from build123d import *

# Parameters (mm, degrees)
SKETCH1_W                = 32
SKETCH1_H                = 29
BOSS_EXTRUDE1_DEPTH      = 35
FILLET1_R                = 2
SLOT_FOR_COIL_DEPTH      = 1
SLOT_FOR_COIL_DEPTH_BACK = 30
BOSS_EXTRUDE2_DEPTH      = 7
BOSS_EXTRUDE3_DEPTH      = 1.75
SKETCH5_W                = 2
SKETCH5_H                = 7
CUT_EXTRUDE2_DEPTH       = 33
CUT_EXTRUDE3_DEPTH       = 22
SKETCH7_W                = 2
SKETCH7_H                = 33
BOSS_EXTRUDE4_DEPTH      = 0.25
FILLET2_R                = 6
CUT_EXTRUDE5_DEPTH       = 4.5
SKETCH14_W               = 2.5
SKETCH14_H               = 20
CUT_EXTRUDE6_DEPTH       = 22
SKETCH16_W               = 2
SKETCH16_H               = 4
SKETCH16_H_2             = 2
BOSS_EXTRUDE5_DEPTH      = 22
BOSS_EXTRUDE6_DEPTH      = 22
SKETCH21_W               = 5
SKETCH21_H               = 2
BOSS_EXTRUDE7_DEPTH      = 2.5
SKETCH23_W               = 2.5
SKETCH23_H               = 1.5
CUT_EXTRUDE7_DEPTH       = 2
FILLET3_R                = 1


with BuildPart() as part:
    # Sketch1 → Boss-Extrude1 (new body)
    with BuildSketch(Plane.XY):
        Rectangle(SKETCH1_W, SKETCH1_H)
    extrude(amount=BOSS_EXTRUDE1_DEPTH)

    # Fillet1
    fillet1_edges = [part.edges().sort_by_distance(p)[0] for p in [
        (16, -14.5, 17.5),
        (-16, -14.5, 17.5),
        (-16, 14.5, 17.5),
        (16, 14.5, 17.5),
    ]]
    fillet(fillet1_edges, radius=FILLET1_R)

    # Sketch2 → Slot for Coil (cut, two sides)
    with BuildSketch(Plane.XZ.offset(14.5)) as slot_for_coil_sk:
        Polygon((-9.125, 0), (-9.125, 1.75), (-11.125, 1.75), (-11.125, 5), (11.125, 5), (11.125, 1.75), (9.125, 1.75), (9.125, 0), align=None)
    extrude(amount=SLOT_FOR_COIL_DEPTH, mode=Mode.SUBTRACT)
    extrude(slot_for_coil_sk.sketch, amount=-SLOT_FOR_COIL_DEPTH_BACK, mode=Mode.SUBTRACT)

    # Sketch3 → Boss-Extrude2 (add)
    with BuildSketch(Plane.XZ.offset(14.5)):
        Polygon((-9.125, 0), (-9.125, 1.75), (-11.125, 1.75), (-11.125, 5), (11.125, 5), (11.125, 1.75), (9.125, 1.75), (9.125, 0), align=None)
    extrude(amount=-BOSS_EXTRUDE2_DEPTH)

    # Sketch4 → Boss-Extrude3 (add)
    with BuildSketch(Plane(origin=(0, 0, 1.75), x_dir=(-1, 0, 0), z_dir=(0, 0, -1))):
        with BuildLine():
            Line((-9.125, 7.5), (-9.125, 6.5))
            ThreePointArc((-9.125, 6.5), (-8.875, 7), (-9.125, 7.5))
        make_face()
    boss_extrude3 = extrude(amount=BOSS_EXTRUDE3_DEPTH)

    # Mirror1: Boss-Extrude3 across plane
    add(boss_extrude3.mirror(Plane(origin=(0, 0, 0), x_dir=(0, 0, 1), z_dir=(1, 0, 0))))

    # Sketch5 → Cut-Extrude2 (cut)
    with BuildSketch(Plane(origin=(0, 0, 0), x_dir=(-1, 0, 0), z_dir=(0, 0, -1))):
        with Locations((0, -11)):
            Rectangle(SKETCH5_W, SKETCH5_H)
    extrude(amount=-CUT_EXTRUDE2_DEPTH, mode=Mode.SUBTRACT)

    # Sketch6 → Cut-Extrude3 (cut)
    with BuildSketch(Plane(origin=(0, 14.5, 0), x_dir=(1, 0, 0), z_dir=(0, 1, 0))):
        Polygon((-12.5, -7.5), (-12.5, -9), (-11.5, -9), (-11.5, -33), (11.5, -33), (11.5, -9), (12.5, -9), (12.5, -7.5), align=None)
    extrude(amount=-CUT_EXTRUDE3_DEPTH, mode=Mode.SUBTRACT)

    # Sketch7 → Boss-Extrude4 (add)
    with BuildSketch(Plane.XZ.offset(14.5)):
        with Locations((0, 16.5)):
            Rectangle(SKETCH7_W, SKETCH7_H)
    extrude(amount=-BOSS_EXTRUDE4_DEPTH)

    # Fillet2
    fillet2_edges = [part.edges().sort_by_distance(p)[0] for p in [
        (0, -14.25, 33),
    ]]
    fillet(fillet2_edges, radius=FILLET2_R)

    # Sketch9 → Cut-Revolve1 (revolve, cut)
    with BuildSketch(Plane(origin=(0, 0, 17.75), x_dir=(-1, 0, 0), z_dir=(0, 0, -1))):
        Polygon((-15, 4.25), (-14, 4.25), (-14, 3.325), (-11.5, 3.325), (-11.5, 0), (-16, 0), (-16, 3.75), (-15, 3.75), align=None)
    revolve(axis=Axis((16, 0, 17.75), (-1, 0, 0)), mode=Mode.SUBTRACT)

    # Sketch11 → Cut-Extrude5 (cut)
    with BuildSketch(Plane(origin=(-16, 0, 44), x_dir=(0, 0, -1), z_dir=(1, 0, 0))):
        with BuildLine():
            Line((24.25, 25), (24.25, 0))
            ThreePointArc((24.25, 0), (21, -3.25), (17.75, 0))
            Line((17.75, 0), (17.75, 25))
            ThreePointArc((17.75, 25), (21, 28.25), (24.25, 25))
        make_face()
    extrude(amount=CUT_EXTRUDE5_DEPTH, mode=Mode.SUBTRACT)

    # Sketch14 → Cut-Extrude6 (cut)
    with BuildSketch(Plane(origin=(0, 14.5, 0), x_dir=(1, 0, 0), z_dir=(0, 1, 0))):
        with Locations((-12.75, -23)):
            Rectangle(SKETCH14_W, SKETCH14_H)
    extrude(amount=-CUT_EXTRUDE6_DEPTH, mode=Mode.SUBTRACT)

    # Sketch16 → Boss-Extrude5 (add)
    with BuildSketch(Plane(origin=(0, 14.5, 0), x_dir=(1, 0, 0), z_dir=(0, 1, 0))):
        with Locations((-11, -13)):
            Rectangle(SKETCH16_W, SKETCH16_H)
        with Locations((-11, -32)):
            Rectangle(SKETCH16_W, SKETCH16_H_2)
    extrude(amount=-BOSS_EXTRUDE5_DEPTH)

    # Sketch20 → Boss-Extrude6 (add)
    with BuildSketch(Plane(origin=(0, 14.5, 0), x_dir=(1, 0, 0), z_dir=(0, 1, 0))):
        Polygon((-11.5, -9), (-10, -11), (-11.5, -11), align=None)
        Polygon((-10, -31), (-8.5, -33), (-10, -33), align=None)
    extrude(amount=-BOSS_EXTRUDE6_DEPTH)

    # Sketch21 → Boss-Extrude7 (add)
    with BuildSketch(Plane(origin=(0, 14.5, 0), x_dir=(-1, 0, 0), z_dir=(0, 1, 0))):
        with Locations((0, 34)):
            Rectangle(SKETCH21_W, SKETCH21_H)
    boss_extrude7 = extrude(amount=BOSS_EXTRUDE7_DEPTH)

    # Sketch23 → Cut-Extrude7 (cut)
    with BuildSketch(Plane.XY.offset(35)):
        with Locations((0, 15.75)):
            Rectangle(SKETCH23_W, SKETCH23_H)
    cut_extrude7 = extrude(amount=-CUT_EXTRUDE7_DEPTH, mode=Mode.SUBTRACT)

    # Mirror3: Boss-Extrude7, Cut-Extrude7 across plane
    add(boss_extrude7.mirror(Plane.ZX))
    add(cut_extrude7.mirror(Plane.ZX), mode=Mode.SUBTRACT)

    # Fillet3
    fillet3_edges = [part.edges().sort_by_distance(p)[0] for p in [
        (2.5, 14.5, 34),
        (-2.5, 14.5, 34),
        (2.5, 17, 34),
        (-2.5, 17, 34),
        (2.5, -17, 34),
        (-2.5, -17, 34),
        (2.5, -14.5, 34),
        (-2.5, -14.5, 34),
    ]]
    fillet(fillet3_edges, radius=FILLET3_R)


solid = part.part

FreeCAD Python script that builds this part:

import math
import FreeCAD as App
import Part
import Sketcher


def edges_at(feature, points):
    """Names of the edges that pass closest to the given points."""
    edges = feature.Shape.Edges
    near = lambda p: min(range(len(edges)), key=lambda i: edges[i].distToShape(Part.Vertex(*p))[0])
    return sorted({f"Edge{near(p) + 1}" for p in points})

doc = App.newDocument("Part")
body = doc.addObject("PartDesign::Body", "Body")

# Sketch on XY plane
sketch1 = body.newObject("Sketcher::SketchObject", "Sketch")
sketch1.AttachmentSupport = (doc.getObject("XY_Plane"), [""])
sketch1.MapMode = "FlatFace"
sketch1.addGeometry(Part.LineSegment(App.Vector(-16, 14, 0), App.Vector(-16, -14, 0)), False)
sketch1.addGeometry(Part.LineSegment(App.Vector(-16, -14, 0), App.Vector(16, -14, 0)), False)
sketch1.addGeometry(Part.LineSegment(App.Vector(16, -14, 0), App.Vector(16, 14, 0)), False)
sketch1.addGeometry(Part.LineSegment(App.Vector(16, 14, 0), App.Vector(-16, 14, 0)), False)
sketch1.addConstraint(Sketcher.Constraint("Coincident", 0, 2, 1, 1))
sketch1.addConstraint(Sketcher.Constraint("Coincident", 1, 2, 2, 1))
sketch1.addConstraint(Sketcher.Constraint("Coincident", 2, 2, 3, 1))
sketch1.addConstraint(Sketcher.Constraint("Coincident", 3, 2, 0, 1))
sketch1.addConstraint(Sketcher.Constraint("Vertical", 0))
sketch1.addConstraint(Sketcher.Constraint("Horizontal", 1))
sketch1.addConstraint(Sketcher.Constraint("Vertical", 2))
sketch1.addConstraint(Sketcher.Constraint("Horizontal", 3))
sketch1.addConstraint(Sketcher.Constraint("Symmetric", 0, 2, 2, 2, -1, 1))
sketch1.addConstraint(Sketcher.Constraint("DistanceX", 1, 1, 1, 2, 32.0))
sketch1.addConstraint(Sketcher.Constraint("DistanceY", 0, 2, 0, 1, 29.0))
pad1 = body.newObject("PartDesign::Pad", "Pad")
pad1.Profile = sketch1
pad1.Length = 35
doc.recompute()

fillet = body.newObject("PartDesign::Fillet", "Fillet")
fillet.Base = (pad1, edges_at(pad1, [
    (16, -14.5, 17.5),
    (-16, -14.5, 17.5),
    (-16, 14.5, 17.5),
    (16, 14.5, 17.5),
]))
fillet.Radius = 2

# Sketch on XZ plane
sketch2 = body.newObject("Sketcher::SketchObject", "Sketch001")
sketch2.AttachmentSupport = (doc.getObject("XZ_Plane"), [""])
sketch2.MapMode = "FlatFace"
sketch2.AttachmentOffset = App.Placement(App.Vector(0, 0, 14.5), App.Rotation())
sketch2.addGeometry(Part.LineSegment(App.Vector(-9.1, 1.8, 0), App.Vector(-9.1, 0, 0)), False)
sketch2.addGeometry(Part.LineSegment(App.Vector(-9.1, 0, 0), App.Vector(9.1, 0, 0)), False)
sketch2.addGeometry(Part.LineSegment(App.Vector(9.1, 0, 0), App.Vector(9.1, 1.8, 0)), False)
sketch2.addGeometry(Part.LineSegment(App.Vector(9.1, 1.8, 0), App.Vector(11.1, 1.8, 0)), False)
sketch2.addGeometry(Part.LineSegment(App.Vector(11.1, 1.8, 0), App.Vector(11.1, 5, 0)), False)
sketch2.addGeometry(Part.LineSegment(App.Vector(11.1, 5, 0), App.Vector(-11.1, 5, 0)), False)
sketch2.addGeometry(Part.LineSegment(App.Vector(-11.1, 5, 0), App.Vector(-11.1, 1.8, 0)), False)
sketch2.addGeometry(Part.LineSegment(App.Vector(-11.1, 1.8, 0), App.Vector(-9.1, 1.8, 0)), False)
sketch2.addConstraint(Sketcher.Constraint("Coincident", 0, 2, 1, 1))
sketch2.addConstraint(Sketcher.Constraint("Coincident", 1, 2, 2, 1))
sketch2.addConstraint(Sketcher.Constraint("Coincident", 2, 2, 3, 1))
sketch2.addConstraint(Sketcher.Constraint("Coincident", 3, 2, 4, 1))
sketch2.addConstraint(Sketcher.Constraint("Coincident", 4, 2, 5, 1))
sketch2.addConstraint(Sketcher.Constraint("Coincident", 5, 2, 6, 1))
sketch2.addConstraint(Sketcher.Constraint("Coincident", 6, 2, 7, 1))
sketch2.addConstraint(Sketcher.Constraint("Coincident", 7, 2, 0, 1))
sketch2.addConstraint(Sketcher.Constraint("Vertical", 0))
sketch2.addConstraint(Sketcher.Constraint("Horizontal", 1))
sketch2.addConstraint(Sketcher.Constraint("Vertical", 2))
sketch2.addConstraint(Sketcher.Constraint("Horizontal", 3))
sketch2.addConstraint(Sketcher.Constraint("Vertical", 4))
sketch2.addConstraint(Sketcher.Constraint("Horizontal", 5))
sketch2.addConstraint(Sketcher.Constraint("Vertical", 6))
sketch2.addConstraint(Sketcher.Constraint("Horizontal", 7))
sketch2.addConstraint(Sketcher.Constraint("Symmetric", 0, 2, 1, 2, -1, 1))
sketch2.addConstraint(Sketcher.Constraint("Symmetric", 3, 2, 6, 2, -2))
sketch2.addConstraint(Sketcher.Constraint("DistanceX", 3, 1, 3, 2, 2.0))
sketch2.addConstraint(Sketcher.Constraint("DistanceY", -1, 1, 4, 2, 5.0))
sketch2.addConstraint(Sketcher.Constraint("DistanceX", 1, 1, 1, 2, 18.25))
sketch2.addConstraint(Sketcher.Constraint("DistanceY", 0, 2, 0, 1, 1.75))
pocket1 = body.newObject("PartDesign::Pocket", "Pocket")
pocket1.Profile = sketch2
pocket1.Type = "ThroughAll"
pocket1.Midplane = True

# Sketch on XZ plane
sketch3 = body.newObject("Sketcher::SketchObject", "Sketch002")
sketch3.AttachmentSupport = (doc.getObject("XZ_Plane"), [""])
sketch3.MapMode = "FlatFace"
sketch3.AttachmentOffset = App.Placement(App.Vector(0, 0, 14.5), App.Rotation())
sketch3.addGeometry(Part.LineSegment(App.Vector(-9.1, 1.8, 0), App.Vector(-9.1, 0, 0)), False)
sketch3.addGeometry(Part.LineSegment(App.Vector(-9.1, 0, 0), App.Vector(9.1, 0, 0)), False)
sketch3.addGeometry(Part.LineSegment(App.Vector(9.1, 0, 0), App.Vector(9.1, 1.8, 0)), False)
sketch3.addGeometry(Part.LineSegment(App.Vector(9.1, 1.8, 0), App.Vector(11.1, 1.8, 0)), False)
sketch3.addGeometry(Part.LineSegment(App.Vector(11.1, 1.8, 0), App.Vector(11.1, 5, 0)), False)
sketch3.addGeometry(Part.LineSegment(App.Vector(11.1, 5, 0), App.Vector(-11.1, 5, 0)), False)
sketch3.addGeometry(Part.LineSegment(App.Vector(-11.1, 5, 0), App.Vector(-11.1, 1.8, 0)), False)
sketch3.addGeometry(Part.LineSegment(App.Vector(-11.1, 1.8, 0), App.Vector(-9.1, 1.8, 0)), False)
sketch3.addConstraint(Sketcher.Constraint("Coincident", 0, 2, 1, 1))
sketch3.addConstraint(Sketcher.Constraint("Coincident", 1, 2, 2, 1))
sketch3.addConstraint(Sketcher.Constraint("Coincident", 2, 2, 3, 1))
sketch3.addConstraint(Sketcher.Constraint("Coincident", 3, 2, 4, 1))
sketch3.addConstraint(Sketcher.Constraint("Coincident", 4, 2, 5, 1))
sketch3.addConstraint(Sketcher.Constraint("Coincident", 5, 2, 6, 1))
sketch3.addConstraint(Sketcher.Constraint("Coincident", 6, 2, 7, 1))
sketch3.addConstraint(Sketcher.Constraint("Coincident", 7, 2, 0, 1))
sketch3.addConstraint(Sketcher.Constraint("Vertical", 0))
sketch3.addConstraint(Sketcher.Constraint("Horizontal", 1))
sketch3.addConstraint(Sketcher.Constraint("Vertical", 2))
sketch3.addConstraint(Sketcher.Constraint("Horizontal", 3))
sketch3.addConstraint(Sketcher.Constraint("Vertical", 4))
sketch3.addConstraint(Sketcher.Constraint("Horizontal", 5))
sketch3.addConstraint(Sketcher.Constraint("Vertical", 6))
sketch3.addConstraint(Sketcher.Constraint("Horizontal", 7))
sketch3.addConstraint(Sketcher.Constraint("Symmetric", 0, 2, 1, 2, -1, 1))
sketch3.addConstraint(Sketcher.Constraint("Symmetric", 3, 2, 6, 2, -2))
sketch3.addConstraint(Sketcher.Constraint("DistanceX", 3, 1, 3, 2, 2.0))
sketch3.addConstraint(Sketcher.Constraint("DistanceY", -1, 1, 4, 2, 5.0))
sketch3.addConstraint(Sketcher.Constraint("DistanceX", 1, 1, 1, 2, 18.25))
sketch3.addConstraint(Sketcher.Constraint("DistanceY", 0, 2, 0, 1, 1.75))
pad2 = body.newObject("PartDesign::Pad", "Pad001")
pad2.Profile = sketch3
pad2.Length = 7
pad2.Reversed = True

# Sketch on XY plane
sketch4 = body.newObject("Sketcher::SketchObject", "Sketch003")
sketch4.AttachmentSupport = (doc.getObject("XY_Plane"), [""])
sketch4.MapMode = "FlatFace"
sketch4.AttachmentOffset = App.Placement(App.Vector(0, 0, 1.75), App.Rotation())
sketch4.addGeometry(Part.LineSegment(App.Vector(9.1, 7.5, 0), App.Vector(9.1, 6.5, 0)), False)
sketch4.addGeometry(Part.ArcOfCircle(Part.Circle(App.Vector(9.5, 7, 0), App.Vector(0, 0, 1), 0.6), math.radians(127), math.radians(233)), False)
sketch4.addConstraint(Sketcher.Constraint("Coincident", 0, 1, 1, 1))
sketch4.addConstraint(Sketcher.Constraint("Coincident", 1, 2, 0, 2))
sketch4.addConstraint(Sketcher.Constraint("Vertical", 0))
sketch4.addConstraint(Sketcher.Constraint("DistanceY", 0, 2, 0, 1, 1.0))
sketch4.addConstraint(Sketcher.Constraint("DistanceY", -1, 1, 1, 3, 7.0))
sketch4.addConstraint(Sketcher.Constraint("Radius", 1, 0.625))
sketch4.addConstraint(Sketcher.Constraint("DistanceX", -1, 1, 1, 3, 9.5))
pad3 = body.newObject("PartDesign::Pad", "Pad002")
pad3.Profile = sketch4
pad3.Length = 1.75
pad3.Reversed = True
doc.recompute()

mirrored = body.newObject("PartDesign::Mirrored", "Mirrored")
mirrored.Originals = [pad3]
mirrored.MirrorPlane = (doc.getObject("YZ_Plane"), [""])
body.Tip = mirrored

# Sketch on XY plane
sketch5 = body.newObject("Sketcher::SketchObject", "Sketch004")
sketch5.AttachmentSupport = (doc.getObject("XY_Plane"), [""])
sketch5.MapMode = "FlatFace"
sketch5.addGeometry(Part.LineSegment(App.Vector(1, -7.5, 0), App.Vector(1, -14.5, 0)), False)
sketch5.addGeometry(Part.LineSegment(App.Vector(1, -14.5, 0), App.Vector(-1, -14.5, 0)), False)
sketch5.addGeometry(Part.LineSegment(App.Vector(-1, -14.5, 0), App.Vector(-1, -7.5, 0)), False)
sketch5.addGeometry(Part.LineSegment(App.Vector(-1, -7.5, 0), App.Vector(1, -7.5, 0)), False)
sketch5.addConstraint(Sketcher.Constraint("Coincident", 0, 2, 1, 1))
sketch5.addConstraint(Sketcher.Constraint("Coincident", 1, 2, 2, 1))
sketch5.addConstraint(Sketcher.Constraint("Coincident", 2, 2, 3, 1))
sketch5.addConstraint(Sketcher.Constraint("Coincident", 3, 2, 0, 1))
sketch5.addConstraint(Sketcher.Constraint("Vertical", 0))
sketch5.addConstraint(Sketcher.Constraint("Horizontal", 1))
sketch5.addConstraint(Sketcher.Constraint("Vertical", 2))
sketch5.addConstraint(Sketcher.Constraint("Horizontal", 3))
sketch5.addConstraint(Sketcher.Constraint("DistanceX", 1, 2, 1, 1, 2.0))
sketch5.addConstraint(Sketcher.Constraint("DistanceY", 0, 2, 0, 1, 7.0))
sketch5.addConstraint(Sketcher.Constraint("DistanceX", -1, 1, 0, 2, 1.0))
sketch5.addConstraint(Sketcher.Constraint("DistanceY", 0, 2, -1, 1, 14.5))
pocket2 = body.newObject("PartDesign::Pocket", "Pocket001")
pocket2.Profile = sketch5
pocket2.Length = 33
pocket2.Reversed = True

# Sketch on XZ plane
sketch6 = body.newObject("Sketcher::SketchObject", "Sketch005")
sketch6.AttachmentSupport = (doc.getObject("XZ_Plane"), [""])
sketch6.MapMode = "FlatFace"
sketch6.AttachmentOffset = App.Placement(App.Vector(0, 0, -14.5), App.Rotation())
sketch6.addGeometry(Part.LineSegment(App.Vector(-12.5, 7.5, 0), App.Vector(-12.5, 9, 0)), False)
sketch6.addGeometry(Part.LineSegment(App.Vector(-12.5, 9, 0), App.Vector(-11.5, 9, 0)), False)
sketch6.addGeometry(Part.LineSegment(App.Vector(-11.5, 9, 0), App.Vector(-11.5, 33, 0)), False)
sketch6.addGeometry(Part.LineSegment(App.Vector(-11.5, 33, 0), App.Vector(11.5, 33, 0)), False)
sketch6.addGeometry(Part.LineSegment(App.Vector(11.5, 33, 0), App.Vector(11.5, 9, 0)), False)
sketch6.addGeometry(Part.LineSegment(App.Vector(11.5, 9, 0), App.Vector(12.5, 9, 0)), False)
sketch6.addGeometry(Part.LineSegment(App.Vector(12.5, 9, 0), App.Vector(12.5, 7.5, 0)), False)
sketch6.addGeometry(Part.LineSegment(App.Vector(12.5, 7.5, 0), App.Vector(-12.5, 7.5, 0)), False)
sketch6.addConstraint(Sketcher.Constraint("Coincident", 0, 2, 1, 1))
sketch6.addConstraint(Sketcher.Constraint("Coincident", 1, 2, 2, 1))
sketch6.addConstraint(Sketcher.Constraint("Coincident", 2, 2, 3, 1))
sketch6.addConstraint(Sketcher.Constraint("Coincident", 3, 2, 4, 1))
sketch6.addConstraint(Sketcher.Constraint("Coincident", 4, 2, 5, 1))
sketch6.addConstraint(Sketcher.Constraint("Coincident", 5, 2, 6, 1))
sketch6.addConstraint(Sketcher.Constraint("Coincident", 6, 2, 7, 1))
sketch6.addConstraint(Sketcher.Constraint("Coincident", 7, 2, 0, 1))
sketch6.addConstraint(Sketcher.Constraint("Vertical", 0))
sketch6.addConstraint(Sketcher.Constraint("Horizontal", 1))
sketch6.addConstraint(Sketcher.Constraint("Vertical", 2))
sketch6.addConstraint(Sketcher.Constraint("Horizontal", 3))
sketch6.addConstraint(Sketcher.Constraint("Vertical", 4))
sketch6.addConstraint(Sketcher.Constraint("Horizontal", 5))
sketch6.addConstraint(Sketcher.Constraint("Vertical", 6))
sketch6.addConstraint(Sketcher.Constraint("Horizontal", 7))
sketch6.addConstraint(Sketcher.Constraint("Symmetric", 1, 2, 4, 2, -2))
sketch6.addConstraint(Sketcher.Constraint("Equal", 1, 5))
sketch6.addConstraint(Sketcher.Constraint("DistanceX", 1, 1, 1, 2, 1.0))
sketch6.addConstraint(Sketcher.Constraint("DistanceX", 3, 1, 3, 2, 23.0))
sketch6.addConstraint(Sketcher.Constraint("DistanceY", 2, 1, 2, 2, 24.0))
sketch6.addConstraint(Sketcher.Constraint("DistanceY", 0, 1, 0, 2, 1.5))
sketch6.addConstraint(Sketcher.Constraint("DistanceY", -1, 1, 0, 2, 9.0))
pocket3 = body.newObject("PartDesign::Pocket", "Pocket002")
pocket3.Profile = sketch6
pocket3.Length = 22
pocket3.Reversed = True

# Sketch on XZ plane
sketch7 = body.newObject("Sketcher::SketchObject", "Sketch006")
sketch7.AttachmentSupport = (doc.getObject("XZ_Plane"), [""])
sketch7.MapMode = "FlatFace"
sketch7.AttachmentOffset = App.Placement(App.Vector(0, 0, 14.5), App.Rotation())
sketch7.addGeometry(Part.LineSegment(App.Vector(-1, 33, 0), App.Vector(-1, 0, 0)), False)
sketch7.addGeometry(Part.LineSegment(App.Vector(-1, 0, 0), App.Vector(1, 0, 0)), False)
sketch7.addGeometry(Part.LineSegment(App.Vector(1, 0, 0), App.Vector(1, 33, 0)), False)
sketch7.addGeometry(Part.LineSegment(App.Vector(1, 33, 0), App.Vector(-1, 33, 0)), False)
sketch7.addConstraint(Sketcher.Constraint("Coincident", 0, 2, 1, 1))
sketch7.addConstraint(Sketcher.Constraint("Coincident", 1, 2, 2, 1))
sketch7.addConstraint(Sketcher.Constraint("Coincident", 2, 2, 3, 1))
sketch7.addConstraint(Sketcher.Constraint("Coincident", 3, 2, 0, 1))
sketch7.addConstraint(Sketcher.Constraint("Vertical", 0))
sketch7.addConstraint(Sketcher.Constraint("Horizontal", 1))
sketch7.addConstraint(Sketcher.Constraint("Vertical", 2))
sketch7.addConstraint(Sketcher.Constraint("Horizontal", 3))
sketch7.addConstraint(Sketcher.Constraint("Symmetric", 0, 2, 1, 2, -1, 1))
sketch7.addConstraint(Sketcher.Constraint("DistanceX", 1, 1, 1, 2, 2.0))
sketch7.addConstraint(Sketcher.Constraint("DistanceY", 0, 2, 0, 1, 33.0))
pad4 = body.newObject("PartDesign::Pad", "Pad003")
pad4.Profile = sketch7
pad4.Length = 0.25
pad4.Reversed = True
doc.recompute()

fillet2 = body.newObject("PartDesign::Fillet", "Fillet001")
fillet2.Base = (pad4, edges_at(pad4, [(0, -14.25, 33)]))
fillet2.Radius = 6

# Sketch on XY plane
sketch8 = body.newObject("Sketcher::SketchObject", "Sketch007")
sketch8.AttachmentSupport = (doc.getObject("XY_Plane"), [""])
sketch8.MapMode = "FlatFace"
sketch8.AttachmentOffset = App.Placement(App.Vector(0, 0, 17.75), App.Rotation())
sketch8.addGeometry(Part.LineSegment(App.Vector(14, 4.2, 0), App.Vector(15, 4.2, 0)), False)
sketch8.addGeometry(Part.LineSegment(App.Vector(15, 4.2, 0), App.Vector(15, 3.8, 0)), False)
sketch8.addGeometry(Part.LineSegment(App.Vector(15, 3.8, 0), App.Vector(16, 3.8, 0)), False)
sketch8.addGeometry(Part.LineSegment(App.Vector(16, 3.8, 0), App.Vector(16, 0, 0)), False)
sketch8.addGeometry(Part.LineSegment(App.Vector(16, 0, 0), App.Vector(11.5, 0, 0)), False)
sketch8.addGeometry(Part.LineSegment(App.Vector(11.5, 0, 0), App.Vector(11.5, 3.3, 0)), False)
sketch8.addGeometry(Part.LineSegment(App.Vector(11.5, 3.3, 0), App.Vector(14, 3.3, 0)), False)
sketch8.addGeometry(Part.LineSegment(App.Vector(14, 3.3, 0), App.Vector(14, 4.2, 0)), False)
sketch8.addConstraint(Sketcher.Constraint("Coincident", 0, 2, 1, 1))
sketch8.addConstraint(Sketcher.Constraint("Coincident", 1, 2, 2, 1))
sketch8.addConstraint(Sketcher.Constraint("Coincident", 2, 2, 3, 1))
sketch8.addConstraint(Sketcher.Constraint("Coincident", 3, 2, 4, 1))
sketch8.addConstraint(Sketcher.Constraint("Coincident", 4, 2, 5, 1))
sketch8.addConstraint(Sketcher.Constraint("Coincident", 5, 2, 6, 1))
sketch8.addConstraint(Sketcher.Constraint("Coincident", 6, 2, 7, 1))
sketch8.addConstraint(Sketcher.Constraint("Coincident", 7, 2, 0, 1))
sketch8.addConstraint(Sketcher.Constraint("Horizontal", 0))
sketch8.addConstraint(Sketcher.Constraint("Vertical", 1))
sketch8.addConstraint(Sketcher.Constraint("Horizontal", 2))
sketch8.addConstraint(Sketcher.Constraint("Vertical", 3))
sketch8.addConstraint(Sketcher.Constraint("Horizontal", 4))
sketch8.addConstraint(Sketcher.Constraint("Vertical", 5))
sketch8.addConstraint(Sketcher.Constraint("Horizontal", 6))
sketch8.addConstraint(Sketcher.Constraint("Vertical", 7))
sketch8.addConstraint(Sketcher.Constraint("PointOnObject", 3, 2, -1))
sketch8.addConstraint(Sketcher.Constraint("Equal", 0, 2))
sketch8.addConstraint(Sketcher.Constraint("DistanceX", 0, 1, 0, 2, 1.0))
sketch8.addConstraint(Sketcher.Constraint("DistanceX", 4, 2, 4, 1, 4.5))
sketch8.addConstraint(Sketcher.Constraint("DistanceY", 1, 2, 1, 1, 0.5))
sketch8.addConstraint(Sketcher.Constraint("DistanceX", -1, 1, 0, 2, 15.0))
sketch8.addConstraint(Sketcher.Constraint("DistanceY", 3, 2, 3, 1, 3.75))
sketch8.addConstraint(Sketcher.Constraint("DistanceY", 5, 1, 5, 2, 3.325))
groove = body.newObject("PartDesign::Groove", "Groove")
groove.Profile = sketch8
groove.ReferenceAxis = (sketch8, ["H_Axis"])
groove.Angle = 360

# Sketch on YZ plane
sketch9 = body.newObject("Sketcher::SketchObject", "Sketch008")
sketch9.AttachmentSupport = (doc.getObject("YZ_Plane"), [""])
sketch9.MapMode = "FlatFace"
sketch9.AttachmentOffset = App.Placement(App.Vector(0, 0, -16), App.Rotation())
sketch9.addGeometry(Part.LineSegment(App.Vector(0, 19.8, 0), App.Vector(25, 19.8, 0)), False)
sketch9.addGeometry(Part.ArcOfCircle(Part.Circle(App.Vector(25, 23, 0), App.Vector(0, 0, 1), 3.2), math.radians(-90), math.radians(90)), False)
sketch9.addGeometry(Part.LineSegment(App.Vector(25, 26.2, 0), App.Vector(0, 26.2, 0)), False)
sketch9.addGeometry(Part.ArcOfCircle(Part.Circle(App.Vector(0, 23, 0), App.Vector(0, 0, 1), 3.2), math.radians(90), math.radians(270)), False)
sketch9.addConstraint(Sketcher.Constraint("Tangent", 0, 2, 1, 1))
sketch9.addConstraint(Sketcher.Constraint("Tangent", 1, 2, 2, 1))
sketch9.addConstraint(Sketcher.Constraint("Tangent", 2, 2, 3, 1))
sketch9.addConstraint(Sketcher.Constraint("Tangent", 3, 2, 0, 1))
sketch9.addConstraint(Sketcher.Constraint("Horizontal", 0))
sketch9.addConstraint(Sketcher.Constraint("Horizontal", 2))
sketch9.addConstraint(Sketcher.Constraint("PointOnObject", 3, 3, -2))
sketch9.addConstraint(Sketcher.Constraint("DistanceX", 0, 1, 0, 2, 25.0))
sketch9.addConstraint(Sketcher.Constraint("Radius", 1, 3.25))
sketch9.addConstraint(Sketcher.Constraint("DistanceY", -1, 1, 1, 3, 23.0))
pocket4 = body.newObject("PartDesign::Pocket", "Pocket003")
pocket4.Profile = sketch9
pocket4.Length = 4.5
pocket4.Reversed = True

# Sketch on XZ plane
sketch10 = body.newObject("Sketcher::SketchObject", "Sketch009")
sketch10.AttachmentSupport = (doc.getObject("XZ_Plane"), [""])
sketch10.MapMode = "FlatFace"
sketch10.AttachmentOffset = App.Placement(App.Vector(0, 0, -14.5), App.Rotation())
sketch10.addGeometry(Part.LineSegment(App.Vector(-14, 13, 0), App.Vector(-14, 33, 0)), False)
sketch10.addGeometry(Part.LineSegment(App.Vector(-14, 33, 0), App.Vector(-11.5, 33, 0)), False)
sketch10.addGeometry(Part.LineSegment(App.Vector(-11.5, 33, 0), App.Vector(-11.5, 13, 0)), False)
sketch10.addGeometry(Part.LineSegment(App.Vector(-11.5, 13, 0), App.Vector(-14, 13, 0)), False)
sketch10.addConstraint(Sketcher.Constraint("Coincident", 0, 2, 1, 1))
sketch10.addConstraint(Sketcher.Constraint("Coincident", 1, 2, 2, 1))
sketch10.addConstraint(Sketcher.Constraint("Coincident", 2, 2, 3, 1))
sketch10.addConstraint(Sketcher.Constraint("Coincident", 3, 2, 0, 1))
sketch10.addConstraint(Sketcher.Constraint("Vertical", 0))
sketch10.addConstraint(Sketcher.Constraint("Horizontal", 1))
sketch10.addConstraint(Sketcher.Constraint("Vertical", 2))
sketch10.addConstraint(Sketcher.Constraint("Horizontal", 3))
sketch10.addConstraint(Sketcher.Constraint("DistanceY", 0, 1, 0, 2, 20.0))
sketch10.addConstraint(Sketcher.Constraint("DistanceX", 1, 1, 1, 2, 2.5))
sketch10.addConstraint(Sketcher.Constraint("DistanceX", 0, 2, -1, 1, 14.0))
sketch10.addConstraint(Sketcher.Constraint("DistanceY", -1, 1, 0, 2, 33.0))
pocket5 = body.newObject("PartDesign::Pocket", "Pocket004")
pocket5.Profile = sketch10
pocket5.Length = 22
pocket5.Reversed = True

# Sketch on XZ plane
sketch11 = body.newObject("Sketcher::SketchObject", "Sketch010")
sketch11.AttachmentSupport = (doc.getObject("XZ_Plane"), [""])
sketch11.MapMode = "FlatFace"
sketch11.AttachmentOffset = App.Placement(App.Vector(0, 0, -14.5), App.Rotation())
sketch11.addGeometry(Part.LineSegment(App.Vector(-12, 11, 0), App.Vector(-12, 15, 0)), False)
sketch11.addGeometry(Part.LineSegment(App.Vector(-12, 15, 0), App.Vector(-10, 15, 0)), False)
sketch11.addGeometry(Part.LineSegment(App.Vector(-10, 15, 0), App.Vector(-10, 11, 0)), False)
sketch11.addGeometry(Part.LineSegment(App.Vector(-10, 11, 0), App.Vector(-12, 11, 0)), False)
sketch11.addGeometry(Part.LineSegment(App.Vector(-12, 31, 0), App.Vector(-12, 33, 0)), False)
sketch11.addGeometry(Part.LineSegment(App.Vector(-12, 33, 0), App.Vector(-10, 33, 0)), False)
sketch11.addGeometry(Part.LineSegment(App.Vector(-10, 33, 0), App.Vector(-10, 31, 0)), False)
sketch11.addGeometry(Part.LineSegment(App.Vector(-10, 31, 0), App.Vector(-12, 31, 0)), False)
sketch11.addConstraint(Sketcher.Constraint("Coincident", 0, 2, 1, 1))
sketch11.addConstraint(Sketcher.Constraint("Coincident", 1, 2, 2, 1))
sketch11.addConstraint(Sketcher.Constraint("Coincident", 2, 2, 3, 1))
sketch11.addConstraint(Sketcher.Constraint("Coincident", 3, 2, 0, 1))
sketch11.addConstraint(Sketcher.Constraint("Coincident", 4, 2, 5, 1))
sketch11.addConstraint(Sketcher.Constraint("Coincident", 5, 2, 6, 1))
sketch11.addConstraint(Sketcher.Constraint("Coincident", 6, 2, 7, 1))
sketch11.addConstraint(Sketcher.Constraint("Coincident", 7, 2, 4, 1))
sketch11.addConstraint(Sketcher.Constraint("Vertical", 0))
sketch11.addConstraint(Sketcher.Constraint("Horizontal", 1))
sketch11.addConstraint(Sketcher.Constraint("Vertical", 2))
sketch11.addConstraint(Sketcher.Constraint("Horizontal", 3))
sketch11.addConstraint(Sketcher.Constraint("Vertical", 4))
sketch11.addConstraint(Sketcher.Constraint("Horizontal", 5))
sketch11.addConstraint(Sketcher.Constraint("Vertical", 6))
sketch11.addConstraint(Sketcher.Constraint("Horizontal", 7))
sketch11.addConstraint(Sketcher.Constraint("Vertical", 3, 2, 4, 2))
sketch11.addConstraint(Sketcher.Constraint("Vertical", 2, 2, 5, 2))
sketch11.addConstraint(Sketcher.Constraint("Equal", 7, 4))
sketch11.addConstraint(Sketcher.Constraint("DistanceX", 1, 1, 1, 2, 2.0))
sketch11.addConstraint(Sketcher.Constraint("DistanceY", 0, 1, 0, 2, 4.0))
sketch11.addConstraint(Sketcher.Constraint("DistanceX", 0, 2, -1, 1, 12.0))
sketch11.addConstraint(Sketcher.Constraint("DistanceY", -1, 1, 0, 2, 15.0))
sketch11.addConstraint(Sketcher.Constraint("DistanceY", -1, 1, 4, 2, 33.0))
pad5 = body.newObject("PartDesign::Pad", "Pad004")
pad5.Profile = sketch11
pad5.Length = 22

# Sketch on XZ plane
sketch12 = body.newObject("Sketcher::SketchObject", "Sketch011")
sketch12.AttachmentSupport = (doc.getObject("XZ_Plane"), [""])
sketch12.MapMode = "FlatFace"
sketch12.AttachmentOffset = App.Placement(App.Vector(0, 0, -14.5), App.Rotation())
sketch12.addGeometry(Part.LineSegment(App.Vector(-10, 11, 0), App.Vector(-11.5, 9, 0)), False)
sketch12.addGeometry(Part.LineSegment(App.Vector(-11.5, 9, 0), App.Vector(-11.5, 11, 0)), False)
sketch12.addGeometry(Part.LineSegment(App.Vector(-11.5, 11, 0), App.Vector(-10, 11, 0)), False)
sketch12.addGeometry(Part.LineSegment(App.Vector(-8.5, 33, 0), App.Vector(-10, 31, 0)), False)
sketch12.addGeometry(Part.LineSegment(App.Vector(-10, 31, 0), App.Vector(-10, 33, 0)), False)
sketch12.addGeometry(Part.LineSegment(App.Vector(-10, 33, 0), App.Vector(-8.5, 33, 0)), False)
sketch12.addConstraint(Sketcher.Constraint("Coincident", 0, 2, 1, 1))
sketch12.addConstraint(Sketcher.Constraint("Coincident", 1, 2, 2, 1))
sketch12.addConstraint(Sketcher.Constraint("Coincident", 2, 2, 0, 1))
sketch12.addConstraint(Sketcher.Constraint("Coincident", 3, 2, 4, 1))
sketch12.addConstraint(Sketcher.Constraint("Coincident", 4, 2, 5, 1))
sketch12.addConstraint(Sketcher.Constraint("Coincident", 5, 2, 3, 1))
sketch12.addConstraint(Sketcher.Constraint("Vertical", 1))
sketch12.addConstraint(Sketcher.Constraint("Horizontal", 2))
sketch12.addConstraint(Sketcher.Constraint("Vertical", 4))
sketch12.addConstraint(Sketcher.Constraint("Horizontal", 5))
sketch12.addConstraint(Sketcher.Constraint("Parallel", 0, 3))
sketch12.addConstraint(Sketcher.Constraint("Vertical", 2, 2, 3, 2))
sketch12.addConstraint(Sketcher.Constraint("Equal", 2, 5))
sketch12.addConstraint(Sketcher.Constraint("DistanceY", 1, 1, 1, 2, 2.0))
sketch12.addConstraint(Sketcher.Constraint("DistanceX", 2, 1, 2, 2, 1.5))
sketch12.addConstraint(Sketcher.Constraint("DistanceY", -1, 1, 0, 2, 9.0))
sketch12.addConstraint(Sketcher.Constraint("DistanceX", 2, 2, -1, 1, 10.0))
sketch12.addConstraint(Sketcher.Constraint("DistanceY", -1, 1, 3, 2, 31.0))
pad6 = body.newObject("PartDesign::Pad", "Pad005")
pad6.Profile = sketch12
pad6.Length = 22

# Sketch on XZ plane
sketch13 = body.newObject("Sketcher::SketchObject", "Sketch012")
sketch13.AttachmentSupport = (doc.getObject("XZ_Plane"), [""])
sketch13.MapMode = "FlatFace"
sketch13.AttachmentOffset = App.Placement(App.Vector(0, 0, -14.5), App.Rotation())
sketch13.addGeometry(Part.LineSegment(App.Vector(2.5, 35, 0), App.Vector(2.5, 33, 0)), False)
sketch13.addGeometry(Part.LineSegment(App.Vector(2.5, 33, 0), App.Vector(-2.5, 33, 0)), False)
sketch13.addGeometry(Part.LineSegment(App.Vector(-2.5, 33, 0), App.Vector(-2.5, 35, 0)), False)
sketch13.addGeometry(Part.LineSegment(App.Vector(-2.5, 35, 0), App.Vector(2.5, 35, 0)), False)
sketch13.addConstraint(Sketcher.Constraint("Coincident", 0, 2, 1, 1))
sketch13.addConstraint(Sketcher.Constraint("Coincident", 1, 2, 2, 1))
sketch13.addConstraint(Sketcher.Constraint("Coincident", 2, 2, 3, 1))
sketch13.addConstraint(Sketcher.Constraint("Coincident", 3, 2, 0, 1))
sketch13.addConstraint(Sketcher.Constraint("Vertical", 0))
sketch13.addConstraint(Sketcher.Constraint("Horizontal", 1))
sketch13.addConstraint(Sketcher.Constraint("Vertical", 2))
sketch13.addConstraint(Sketcher.Constraint("Horizontal", 3))
sketch13.addConstraint(Sketcher.Constraint("DistanceX", 1, 2, 1, 1, 5.0))
sketch13.addConstraint(Sketcher.Constraint("DistanceY", 0, 2, 0, 1, 2.0))
sketch13.addConstraint(Sketcher.Constraint("DistanceY", -1, 1, 0, 2, 33.0))
sketch13.addConstraint(Sketcher.Constraint("DistanceX", -1, 1, 0, 2, 2.5))
pad7 = body.newObject("PartDesign::Pad", "Pad006")
pad7.Profile = sketch13
pad7.Length = 2.5
pad7.Reversed = True

# Sketch on XY plane
sketch14 = body.newObject("Sketcher::SketchObject", "Sketch013")
sketch14.AttachmentSupport = (doc.getObject("XY_Plane"), [""])
sketch14.MapMode = "FlatFace"
sketch14.AttachmentOffset = App.Placement(App.Vector(0, 0, 35), App.Rotation())
sketch14.addGeometry(Part.LineSegment(App.Vector(-1.2, 16.5, 0), App.Vector(-1.2, 15, 0)), False)
sketch14.addGeometry(Part.LineSegment(App.Vector(-1.2, 15, 0), App.Vector(1.2, 15, 0)), False)
sketch14.addGeometry(Part.LineSegment(App.Vector(1.2, 15, 0), App.Vector(1.2, 16.5, 0)), False)
sketch14.addGeometry(Part.LineSegment(App.Vector(1.2, 16.5, 0), App.Vector(-1.2, 16.5, 0)), False)
sketch14.addConstraint(Sketcher.Constraint("Coincident", 0, 2, 1, 1))
sketch14.addConstraint(Sketcher.Constraint("Coincident", 1, 2, 2, 1))
sketch14.addConstraint(Sketcher.Constraint("Coincident", 2, 2, 3, 1))
sketch14.addConstraint(Sketcher.Constraint("Coincident", 3, 2, 0, 1))
sketch14.addConstraint(Sketcher.Constraint("Vertical", 0))
sketch14.addConstraint(Sketcher.Constraint("Horizontal", 1))
sketch14.addConstraint(Sketcher.Constraint("Vertical", 2))
sketch14.addConstraint(Sketcher.Constraint("Horizontal", 3))
sketch14.addConstraint(Sketcher.Constraint("DistanceX", 1, 1, 1, 2, 2.5))
sketch14.addConstraint(Sketcher.Constraint("DistanceY", 0, 2, 0, 1, 1.5))
sketch14.addConstraint(Sketcher.Constraint("DistanceY", -1, 1, 0, 2, 15.0))
sketch14.addConstraint(Sketcher.Constraint("DistanceX", 0, 2, -1, 1, 1.25))
pocket6 = body.newObject("PartDesign::Pocket", "Pocket005")
pocket6.Profile = sketch14
pocket6.Length = 2
doc.recompute()

mirrored2 = body.newObject("PartDesign::Mirrored", "Mirrored001")
mirrored2.Originals = [pad7, pocket6]
mirrored2.MirrorPlane = (doc.getObject("XZ_Plane"), [""])
body.Tip = mirrored2
doc.recompute()

fillet3 = body.newObject("PartDesign::Fillet", "Fillet002")
fillet3.Base = (mirrored2, edges_at(mirrored2, [
    (2.5, 14.5, 34),
    (-2.5, 14.5, 34),
    (2.5, 17, 34),
    (-2.5, 17, 34),
    (2.5, -17, 34),
    (-2.5, -17, 34),
    (2.5, -14.5, 34),
    (-2.5, -14.5, 34),
]))
fillet3.Radius = 1

doc.recompute()
